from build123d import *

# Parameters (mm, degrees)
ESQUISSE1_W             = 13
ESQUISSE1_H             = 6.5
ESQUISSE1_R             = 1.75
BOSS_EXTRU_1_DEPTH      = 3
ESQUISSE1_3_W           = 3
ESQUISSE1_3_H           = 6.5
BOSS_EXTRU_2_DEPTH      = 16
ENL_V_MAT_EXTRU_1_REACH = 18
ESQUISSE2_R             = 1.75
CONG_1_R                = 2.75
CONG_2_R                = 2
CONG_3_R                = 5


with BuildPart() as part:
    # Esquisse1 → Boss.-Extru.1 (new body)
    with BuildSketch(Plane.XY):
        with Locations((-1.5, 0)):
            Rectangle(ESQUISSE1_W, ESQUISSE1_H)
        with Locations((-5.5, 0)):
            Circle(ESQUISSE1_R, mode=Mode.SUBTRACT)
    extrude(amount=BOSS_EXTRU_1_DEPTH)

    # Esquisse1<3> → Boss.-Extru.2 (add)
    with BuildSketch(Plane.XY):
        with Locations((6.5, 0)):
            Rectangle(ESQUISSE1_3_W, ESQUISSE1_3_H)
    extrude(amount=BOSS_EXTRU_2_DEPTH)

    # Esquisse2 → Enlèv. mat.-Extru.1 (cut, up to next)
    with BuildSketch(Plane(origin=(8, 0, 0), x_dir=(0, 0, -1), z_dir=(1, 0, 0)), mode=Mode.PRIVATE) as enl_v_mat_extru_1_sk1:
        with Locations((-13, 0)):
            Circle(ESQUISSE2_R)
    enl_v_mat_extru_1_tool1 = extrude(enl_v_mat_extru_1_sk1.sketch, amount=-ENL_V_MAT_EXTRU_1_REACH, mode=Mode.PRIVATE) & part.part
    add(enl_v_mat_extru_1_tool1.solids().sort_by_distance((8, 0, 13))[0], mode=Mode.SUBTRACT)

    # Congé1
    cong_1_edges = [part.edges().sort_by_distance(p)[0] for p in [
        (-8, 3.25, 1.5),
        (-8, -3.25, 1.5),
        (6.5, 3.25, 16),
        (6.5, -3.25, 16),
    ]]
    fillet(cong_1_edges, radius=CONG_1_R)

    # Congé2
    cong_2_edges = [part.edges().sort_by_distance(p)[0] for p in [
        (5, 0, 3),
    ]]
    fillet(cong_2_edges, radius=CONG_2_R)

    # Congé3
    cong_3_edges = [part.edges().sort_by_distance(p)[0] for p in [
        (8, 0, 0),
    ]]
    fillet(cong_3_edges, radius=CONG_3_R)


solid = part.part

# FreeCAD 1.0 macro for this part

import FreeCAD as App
import Part
import Sketcher


def edges_at(feature, points):
    """Names of the edges that pass closest to the given points."""
    edges = feature.Shape.Edges
    near = lambda p: min(range(len(edges)), key=lambda i: edges[i].distToShape(Part.Vertex(*p))[0])
    return sorted({f"Edge{near(p) + 1}" for p in points})


def add_polygon(sketch, points):
    """Adds a closed chain of lines whose ends are joined by coincident constraints."""
    first, n = sketch.GeometryCount, len(points)
    for a, b in zip(points, points[1:] + points[:1]):
        sketch.addGeometry(Part.LineSegment(App.Vector(*a, 0), App.Vector(*b, 0)), False)
    for i in range(n):
        sketch.addConstraint(Sketcher.Constraint("Coincident", first + i, 2, first + (i + 1) % n, 1))

doc = App.newDocument("Part")
body = doc.addObject("PartDesign::Body", "Body")

sketch1 = body.newObject("Sketcher::SketchObject", "Sketch")
sketch1.AttachmentSupport = (doc.getObject("XY_Plane"), [""])
sketch1.MapMode = "FlatFace"
add_polygon(sketch1, [(-8, 3.2), (-8, -3.2), (5, -3.2), (5, 3.2)])
sketch1.addGeometry(Part.Circle(App.Vector(-5.5, 0, 0), App.Vector(0, 0, 1), 1.8), False)
sketch1.addConstraint([
    Sketcher.Constraint("Vertical", 0),
    Sketcher.Constraint("Horizontal", 1),
    Sketcher.Constraint("Vertical", 2),
    Sketcher.Constraint("Horizontal", 3),
    Sketcher.Constraint("PointOnObject", 4, 3, -1),
    Sketcher.Constraint("Diameter", 4, 3.5),
    Sketcher.Constraint("DistanceX", 1, 1, 1, 2, 13.0),
    Sketcher.Constraint("DistanceY", 0, 2, 0, 1, 6.5),
    Sketcher.Constraint("DistanceX", 0, 2, -1, 1, 8.0),
    Sketcher.Constraint("DistanceX", 4, 3, -1, 1, 5.5),
    Sketcher.Constraint("DistanceY", 0, 2, -1, 1, 3.25),
])
pad1 = body.newObject("PartDesign::Pad", "Pad")
pad1.Profile = sketch1
pad1.Length = 3

sketch2 = body.newObject("Sketcher::SketchObject", "Sketch001")
sketch2.AttachmentSupport = (doc.getObject("XY_Plane"), [""])
sketch2.MapMode = "FlatFace"
add_polygon(sketch2, [(5, 3.2), (5, -3.2), (8, -3.2), (8, 3.2)])
sketch2.addConstraint([
    Sketcher.Constraint("Vertical", 0),
    Sketcher.Constraint("Horizontal", 1),
    Sketcher.Constraint("Vertical", 2),
    Sketcher.Constraint("Horizontal", 3),
    Sketcher.Constraint("DistanceX", 1, 1, 1, 2, 3.0),
    Sketcher.Constraint("DistanceY", 0, 2, 0, 1, 6.5),
    Sketcher.Constraint("DistanceX", -1, 1, 0, 2, 5.0),
    Sketcher.Constraint("DistanceY", 0, 2, -1, 1, 3.25),
])
pad2 = body.newObject("PartDesign::Pad", "Pad001")
pad2.Profile = sketch2
pad2.Length = 16

sketch3 = body.newObject("Sketcher::SketchObject", "Sketch002")
sketch3.AttachmentSupport = (doc.getObject("YZ_Plane"), [""])
sketch3.MapMode = "FlatFace"
sketch3.AttachmentOffset = App.Placement(App.Vector(0, 0, 8), App.Rotation())
sketch3.addGeometry(Part.Circle(App.Vector(0, 13, 0), App.Vector(0, 0, 1), 1.8), False)
sketch3.addConstraint([
    Sketcher.Constraint("PointOnObject", 0, 3, -2),
    Sketcher.Constraint("Diameter", 0, 3.5),
    Sketcher.Constraint("DistanceY", -1, 1, 0, 3, 13.0),
])
pocket1 = body.newObject("PartDesign::Pocket", "Pocket")
pocket1.Profile = sketch3
pocket1.Type = "UpToFirst"
doc.recompute()

fillet = body.newObject("PartDesign::Fillet", "Fillet")
fillet.Base = (pocket1, edges_at(pocket1, [
    (-8, 3.25, 1.5),
    (-8, -3.25, 1.5),
    (6.5, 3.25, 16),
    (6.5, -3.25, 16),
]))
fillet.Radius = 2.75
doc.recompute()

fillet2 = body.newObject("PartDesign::Fillet", "Fillet001")
fillet2.Base = (fillet, edges_at(fillet, [(5, 0, 3)]))
fillet2.Radius = 2
doc.recompute()

fillet3 = body.newObject("PartDesign::Fillet", "Fillet002")
fillet3.Base = (fillet2, edges_at(fillet2, [(8, 0, 0)]))
fillet3.Radius = 5

doc.recompute()
